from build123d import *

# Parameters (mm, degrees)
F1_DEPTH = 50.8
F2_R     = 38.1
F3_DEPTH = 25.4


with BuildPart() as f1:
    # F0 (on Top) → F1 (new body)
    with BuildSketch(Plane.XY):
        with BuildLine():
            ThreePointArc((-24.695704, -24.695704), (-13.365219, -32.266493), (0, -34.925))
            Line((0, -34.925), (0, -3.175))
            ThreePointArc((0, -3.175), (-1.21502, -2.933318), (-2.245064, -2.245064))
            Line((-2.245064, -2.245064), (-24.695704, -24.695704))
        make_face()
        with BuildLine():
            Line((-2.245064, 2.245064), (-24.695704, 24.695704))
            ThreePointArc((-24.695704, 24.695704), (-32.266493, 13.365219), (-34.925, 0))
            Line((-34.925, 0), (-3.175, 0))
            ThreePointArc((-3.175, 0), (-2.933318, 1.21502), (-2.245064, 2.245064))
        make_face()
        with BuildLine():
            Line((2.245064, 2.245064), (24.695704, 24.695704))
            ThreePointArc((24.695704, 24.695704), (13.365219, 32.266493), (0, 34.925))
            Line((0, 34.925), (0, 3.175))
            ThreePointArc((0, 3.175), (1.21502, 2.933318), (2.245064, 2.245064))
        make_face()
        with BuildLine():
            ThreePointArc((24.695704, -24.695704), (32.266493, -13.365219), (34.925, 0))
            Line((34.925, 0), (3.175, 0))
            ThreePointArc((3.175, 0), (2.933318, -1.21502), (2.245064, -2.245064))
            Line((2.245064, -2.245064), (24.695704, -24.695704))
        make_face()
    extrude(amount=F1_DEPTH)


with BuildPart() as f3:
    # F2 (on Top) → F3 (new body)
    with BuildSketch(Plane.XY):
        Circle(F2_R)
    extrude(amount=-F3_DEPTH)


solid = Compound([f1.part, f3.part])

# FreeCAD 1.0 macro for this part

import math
import FreeCAD as App
import Part
import Sketcher

V = App.Vector
Q = App.Units.Quantity

doc = App.newDocument("Part")
body = doc.addObject("PartDesign::Body", "Body")
body.AllowCompound = True

# Sketch on XY plane
sketch1 = doc.addObject("Sketcher::SketchObject", "Sketch")
body.addObject(sketch1)
sketch1.AttachmentSupport = (doc.XY_Plane, [""])
sketch1.MapMode = "FlatFace"
sketch1.addGeometry([
    Part.ArcOfCircle(Part.Circle(V(-0.000002, -0.000007, 0), V(0, 0, 1), 34.924993), math.radians(-135.000006), math.radians(-89.999996)),  # 0
    Part.LineSegment(V(0, -34.925, 0), V(0, -3.175, 0)),  # 1
    Part.ArcOfCircle(Part.Circle(V(-0.000003, -0.000006, 0), V(0, 0, 1), 3.174994), math.radians(-135.000047), math.radians(-89.999955)),  # 2
    Part.LineSegment(V(-2.245064, -2.245064, 0), V(-24.695704, -24.695704, 0)),  # 3
    Part.LineSegment(V(-2.245064, 2.245064, 0), V(-24.695704, 24.695704, 0)),  # 4
    Part.ArcOfCircle(Part.Circle(V(-0.000007, 0.000002, 0), V(0, 0, 1), 34.924993), math.radians(134.999994), math.radians(180.000004)),  # 5
    Part.LineSegment(V(-34.925, 0, 0), V(-3.175, 0, 0)),  # 6
    Part.ArcOfCircle(Part.Circle(V(-0.000006, 0.000003, 0), V(0, 0, 1), 3.174994), math.radians(134.999953), math.radians(180.000045)),  # 7
    Part.LineSegment(V(2.245064, 2.245064, 0), V(24.695704, 24.695704, 0)),  # 8
    Part.ArcOfCircle(Part.Circle(V(0.000002, 0.000007, 0), V(0, 0, 1), 34.924993), math.radians(44.999994), math.radians(90.000004)),  # 9
    Part.LineSegment(V(0, 34.925, 0), V(0, 3.175, 0)),  # 10
    Part.ArcOfCircle(Part.Circle(V(0.000003, 0.000006, 0), V(0, 0, 1), 3.174994), math.radians(44.999953), math.radians(90.000045)),  # 11
    Part.ArcOfCircle(Part.Circle(V(0.000007, -0.000002, 0), V(0, 0, 1), 34.924993), math.radians(-45.000006), math.radians(0.000004)),  # 12
    Part.LineSegment(V(34.925, 0, 0), V(3.175, 0, 0)),  # 13
    Part.ArcOfCircle(Part.Circle(V(0.000006, -0.000003, 0), V(0, 0, 1), 3.174994), math.radians(-45.000047), math.radians(0.000045)),  # 14
    Part.LineSegment(V(2.245064, -2.245064, 0), V(24.695704, -24.695704, 0)),  # 15
], False)
sketch1.addConstraint([
    Sketcher.Constraint("Coincident", 0, 2, 1, 1),
    Sketcher.Constraint("Coincident", 1, 2, 2, 2),
    Sketcher.Constraint("Coincident", 2, 1, 3, 1),
    Sketcher.Constraint("Coincident", 3, 2, 0, 1),
    Sketcher.Constraint("Coincident", 4, 2, 5, 1),
    Sketcher.Constraint("Coincident", 5, 2, 6, 1),
    Sketcher.Constraint("Coincident", 6, 2, 7, 2),
    Sketcher.Constraint("Coincident", 7, 1, 4, 1),
    Sketcher.Constraint("Coincident", 8, 2, 9, 1),
    Sketcher.Constraint("Coincident", 9, 2, 10, 1),
    Sketcher.Constraint("Coincident", 10, 2, 11, 2),
    Sketcher.Constraint("Coincident", 11, 1, 8, 1),
    Sketcher.Constraint("Coincident", 12, 2, 13, 1),
    Sketcher.Constraint("Coincident", 13, 2, 14, 2),
    Sketcher.Constraint("Coincident", 14, 1, 15, 1),
    Sketcher.Constraint("Coincident", 15, 2, 12, 1),
    Sketcher.Constraint("Vertical", 1),
    Sketcher.Constraint("Horizontal", 6),
    Sketcher.Constraint("Vertical", 10),
    Sketcher.Constraint("Horizontal", 13),
    Sketcher.Constraint("Coincident", 0, 3, -1, 1),
    Sketcher.Constraint("Coincident", 2, 3, -1, 1),
    Sketcher.Constraint("Coincident", 5, 3, -1, 1),
    Sketcher.Constraint("Coincident", 7, 3, -1, 1),
    Sketcher.Constraint("Coincident", 9, 3, -1, 1),
    Sketcher.Constraint("Coincident", 11, 3, -1, 1),
    Sketcher.Constraint("Coincident", 12, 3, -1, 1),
    Sketcher.Constraint("Coincident", 14, 3, -1, 1),
    Sketcher.Constraint("Equal", 0, 5),
    Sketcher.Constraint("Equal", 2, 7),
    Sketcher.Constraint("Equal", 5, 9),
    Sketcher.Constraint("Equal", 7, 11),
    Sketcher.Constraint("Equal", 9, 12),
    Sketcher.Constraint("Equal", 11, 14),
    Sketcher.Constraint("PointOnObject", 0, 2, -2),
    Sketcher.Constraint("PointOnObject", 5, 2, -1),
    Sketcher.Constraint("PointOnObject", 9, 2, -2),
    Sketcher.Constraint("PointOnObject", 12, 2, -1),
    Sketcher.Constraint("Perpendicular", 3, 4),
    Sketcher.Constraint("Perpendicular", 4, 8),
    Sketcher.Constraint("Perpendicular", 8, 15),
    Sketcher.Constraint("Horizontal", 4, 2, 8, 2),
    Sketcher.Constraint("Horizontal", 7, 1, 11, 1),
    Sketcher.Constraint("Horizontal", 2, 1, 14, 1),
    Sketcher.Constraint("Vertical", 3, 2, 4, 2),
    Sketcher.Constraint("DistanceX", 6, 1, 6, 2, Q("1.25 in")),
    Sketcher.Constraint("DistanceY", 0, 2, -1, 1, Q("1.375 in")),
    Sketcher.Constraint("DistanceX", 3, 2, 0, 3, Q("24.695702 mm")),
])
pad1 = doc.addObject("PartDesign::Pad", "Pad")
body.addObject(pad1)
pad1.Profile = sketch1
pad1.Length = Q("2 in")
body2 = doc.addObject("PartDesign::Body", "Body001")

# Sketch on XY plane
sketch2 = doc.addObject("Sketcher::SketchObject", "Sketch001")
body2.addObject(sketch2)
sketch2.AttachmentSupport = (doc.getObject("XY_Plane001"), [""])
sketch2.MapMode = "FlatFace"
sketch2.addGeometry(Part.Circle(V(0, 0, 0), V(0, 0, 1), 38.1), False)
sketch2.addConstraint([
    Sketcher.Constraint("Coincident", 0, 3, -1, 1),
    Sketcher.Constraint("Diameter", 0, Q("3 in")),
])
pad2 = doc.addObject("PartDesign::Pad", "Pad001")
body2.addObject(pad2)
pad2.Profile = sketch2
pad2.Length = Q("1 in")
pad2.Reversed = True

doc.recompute()
